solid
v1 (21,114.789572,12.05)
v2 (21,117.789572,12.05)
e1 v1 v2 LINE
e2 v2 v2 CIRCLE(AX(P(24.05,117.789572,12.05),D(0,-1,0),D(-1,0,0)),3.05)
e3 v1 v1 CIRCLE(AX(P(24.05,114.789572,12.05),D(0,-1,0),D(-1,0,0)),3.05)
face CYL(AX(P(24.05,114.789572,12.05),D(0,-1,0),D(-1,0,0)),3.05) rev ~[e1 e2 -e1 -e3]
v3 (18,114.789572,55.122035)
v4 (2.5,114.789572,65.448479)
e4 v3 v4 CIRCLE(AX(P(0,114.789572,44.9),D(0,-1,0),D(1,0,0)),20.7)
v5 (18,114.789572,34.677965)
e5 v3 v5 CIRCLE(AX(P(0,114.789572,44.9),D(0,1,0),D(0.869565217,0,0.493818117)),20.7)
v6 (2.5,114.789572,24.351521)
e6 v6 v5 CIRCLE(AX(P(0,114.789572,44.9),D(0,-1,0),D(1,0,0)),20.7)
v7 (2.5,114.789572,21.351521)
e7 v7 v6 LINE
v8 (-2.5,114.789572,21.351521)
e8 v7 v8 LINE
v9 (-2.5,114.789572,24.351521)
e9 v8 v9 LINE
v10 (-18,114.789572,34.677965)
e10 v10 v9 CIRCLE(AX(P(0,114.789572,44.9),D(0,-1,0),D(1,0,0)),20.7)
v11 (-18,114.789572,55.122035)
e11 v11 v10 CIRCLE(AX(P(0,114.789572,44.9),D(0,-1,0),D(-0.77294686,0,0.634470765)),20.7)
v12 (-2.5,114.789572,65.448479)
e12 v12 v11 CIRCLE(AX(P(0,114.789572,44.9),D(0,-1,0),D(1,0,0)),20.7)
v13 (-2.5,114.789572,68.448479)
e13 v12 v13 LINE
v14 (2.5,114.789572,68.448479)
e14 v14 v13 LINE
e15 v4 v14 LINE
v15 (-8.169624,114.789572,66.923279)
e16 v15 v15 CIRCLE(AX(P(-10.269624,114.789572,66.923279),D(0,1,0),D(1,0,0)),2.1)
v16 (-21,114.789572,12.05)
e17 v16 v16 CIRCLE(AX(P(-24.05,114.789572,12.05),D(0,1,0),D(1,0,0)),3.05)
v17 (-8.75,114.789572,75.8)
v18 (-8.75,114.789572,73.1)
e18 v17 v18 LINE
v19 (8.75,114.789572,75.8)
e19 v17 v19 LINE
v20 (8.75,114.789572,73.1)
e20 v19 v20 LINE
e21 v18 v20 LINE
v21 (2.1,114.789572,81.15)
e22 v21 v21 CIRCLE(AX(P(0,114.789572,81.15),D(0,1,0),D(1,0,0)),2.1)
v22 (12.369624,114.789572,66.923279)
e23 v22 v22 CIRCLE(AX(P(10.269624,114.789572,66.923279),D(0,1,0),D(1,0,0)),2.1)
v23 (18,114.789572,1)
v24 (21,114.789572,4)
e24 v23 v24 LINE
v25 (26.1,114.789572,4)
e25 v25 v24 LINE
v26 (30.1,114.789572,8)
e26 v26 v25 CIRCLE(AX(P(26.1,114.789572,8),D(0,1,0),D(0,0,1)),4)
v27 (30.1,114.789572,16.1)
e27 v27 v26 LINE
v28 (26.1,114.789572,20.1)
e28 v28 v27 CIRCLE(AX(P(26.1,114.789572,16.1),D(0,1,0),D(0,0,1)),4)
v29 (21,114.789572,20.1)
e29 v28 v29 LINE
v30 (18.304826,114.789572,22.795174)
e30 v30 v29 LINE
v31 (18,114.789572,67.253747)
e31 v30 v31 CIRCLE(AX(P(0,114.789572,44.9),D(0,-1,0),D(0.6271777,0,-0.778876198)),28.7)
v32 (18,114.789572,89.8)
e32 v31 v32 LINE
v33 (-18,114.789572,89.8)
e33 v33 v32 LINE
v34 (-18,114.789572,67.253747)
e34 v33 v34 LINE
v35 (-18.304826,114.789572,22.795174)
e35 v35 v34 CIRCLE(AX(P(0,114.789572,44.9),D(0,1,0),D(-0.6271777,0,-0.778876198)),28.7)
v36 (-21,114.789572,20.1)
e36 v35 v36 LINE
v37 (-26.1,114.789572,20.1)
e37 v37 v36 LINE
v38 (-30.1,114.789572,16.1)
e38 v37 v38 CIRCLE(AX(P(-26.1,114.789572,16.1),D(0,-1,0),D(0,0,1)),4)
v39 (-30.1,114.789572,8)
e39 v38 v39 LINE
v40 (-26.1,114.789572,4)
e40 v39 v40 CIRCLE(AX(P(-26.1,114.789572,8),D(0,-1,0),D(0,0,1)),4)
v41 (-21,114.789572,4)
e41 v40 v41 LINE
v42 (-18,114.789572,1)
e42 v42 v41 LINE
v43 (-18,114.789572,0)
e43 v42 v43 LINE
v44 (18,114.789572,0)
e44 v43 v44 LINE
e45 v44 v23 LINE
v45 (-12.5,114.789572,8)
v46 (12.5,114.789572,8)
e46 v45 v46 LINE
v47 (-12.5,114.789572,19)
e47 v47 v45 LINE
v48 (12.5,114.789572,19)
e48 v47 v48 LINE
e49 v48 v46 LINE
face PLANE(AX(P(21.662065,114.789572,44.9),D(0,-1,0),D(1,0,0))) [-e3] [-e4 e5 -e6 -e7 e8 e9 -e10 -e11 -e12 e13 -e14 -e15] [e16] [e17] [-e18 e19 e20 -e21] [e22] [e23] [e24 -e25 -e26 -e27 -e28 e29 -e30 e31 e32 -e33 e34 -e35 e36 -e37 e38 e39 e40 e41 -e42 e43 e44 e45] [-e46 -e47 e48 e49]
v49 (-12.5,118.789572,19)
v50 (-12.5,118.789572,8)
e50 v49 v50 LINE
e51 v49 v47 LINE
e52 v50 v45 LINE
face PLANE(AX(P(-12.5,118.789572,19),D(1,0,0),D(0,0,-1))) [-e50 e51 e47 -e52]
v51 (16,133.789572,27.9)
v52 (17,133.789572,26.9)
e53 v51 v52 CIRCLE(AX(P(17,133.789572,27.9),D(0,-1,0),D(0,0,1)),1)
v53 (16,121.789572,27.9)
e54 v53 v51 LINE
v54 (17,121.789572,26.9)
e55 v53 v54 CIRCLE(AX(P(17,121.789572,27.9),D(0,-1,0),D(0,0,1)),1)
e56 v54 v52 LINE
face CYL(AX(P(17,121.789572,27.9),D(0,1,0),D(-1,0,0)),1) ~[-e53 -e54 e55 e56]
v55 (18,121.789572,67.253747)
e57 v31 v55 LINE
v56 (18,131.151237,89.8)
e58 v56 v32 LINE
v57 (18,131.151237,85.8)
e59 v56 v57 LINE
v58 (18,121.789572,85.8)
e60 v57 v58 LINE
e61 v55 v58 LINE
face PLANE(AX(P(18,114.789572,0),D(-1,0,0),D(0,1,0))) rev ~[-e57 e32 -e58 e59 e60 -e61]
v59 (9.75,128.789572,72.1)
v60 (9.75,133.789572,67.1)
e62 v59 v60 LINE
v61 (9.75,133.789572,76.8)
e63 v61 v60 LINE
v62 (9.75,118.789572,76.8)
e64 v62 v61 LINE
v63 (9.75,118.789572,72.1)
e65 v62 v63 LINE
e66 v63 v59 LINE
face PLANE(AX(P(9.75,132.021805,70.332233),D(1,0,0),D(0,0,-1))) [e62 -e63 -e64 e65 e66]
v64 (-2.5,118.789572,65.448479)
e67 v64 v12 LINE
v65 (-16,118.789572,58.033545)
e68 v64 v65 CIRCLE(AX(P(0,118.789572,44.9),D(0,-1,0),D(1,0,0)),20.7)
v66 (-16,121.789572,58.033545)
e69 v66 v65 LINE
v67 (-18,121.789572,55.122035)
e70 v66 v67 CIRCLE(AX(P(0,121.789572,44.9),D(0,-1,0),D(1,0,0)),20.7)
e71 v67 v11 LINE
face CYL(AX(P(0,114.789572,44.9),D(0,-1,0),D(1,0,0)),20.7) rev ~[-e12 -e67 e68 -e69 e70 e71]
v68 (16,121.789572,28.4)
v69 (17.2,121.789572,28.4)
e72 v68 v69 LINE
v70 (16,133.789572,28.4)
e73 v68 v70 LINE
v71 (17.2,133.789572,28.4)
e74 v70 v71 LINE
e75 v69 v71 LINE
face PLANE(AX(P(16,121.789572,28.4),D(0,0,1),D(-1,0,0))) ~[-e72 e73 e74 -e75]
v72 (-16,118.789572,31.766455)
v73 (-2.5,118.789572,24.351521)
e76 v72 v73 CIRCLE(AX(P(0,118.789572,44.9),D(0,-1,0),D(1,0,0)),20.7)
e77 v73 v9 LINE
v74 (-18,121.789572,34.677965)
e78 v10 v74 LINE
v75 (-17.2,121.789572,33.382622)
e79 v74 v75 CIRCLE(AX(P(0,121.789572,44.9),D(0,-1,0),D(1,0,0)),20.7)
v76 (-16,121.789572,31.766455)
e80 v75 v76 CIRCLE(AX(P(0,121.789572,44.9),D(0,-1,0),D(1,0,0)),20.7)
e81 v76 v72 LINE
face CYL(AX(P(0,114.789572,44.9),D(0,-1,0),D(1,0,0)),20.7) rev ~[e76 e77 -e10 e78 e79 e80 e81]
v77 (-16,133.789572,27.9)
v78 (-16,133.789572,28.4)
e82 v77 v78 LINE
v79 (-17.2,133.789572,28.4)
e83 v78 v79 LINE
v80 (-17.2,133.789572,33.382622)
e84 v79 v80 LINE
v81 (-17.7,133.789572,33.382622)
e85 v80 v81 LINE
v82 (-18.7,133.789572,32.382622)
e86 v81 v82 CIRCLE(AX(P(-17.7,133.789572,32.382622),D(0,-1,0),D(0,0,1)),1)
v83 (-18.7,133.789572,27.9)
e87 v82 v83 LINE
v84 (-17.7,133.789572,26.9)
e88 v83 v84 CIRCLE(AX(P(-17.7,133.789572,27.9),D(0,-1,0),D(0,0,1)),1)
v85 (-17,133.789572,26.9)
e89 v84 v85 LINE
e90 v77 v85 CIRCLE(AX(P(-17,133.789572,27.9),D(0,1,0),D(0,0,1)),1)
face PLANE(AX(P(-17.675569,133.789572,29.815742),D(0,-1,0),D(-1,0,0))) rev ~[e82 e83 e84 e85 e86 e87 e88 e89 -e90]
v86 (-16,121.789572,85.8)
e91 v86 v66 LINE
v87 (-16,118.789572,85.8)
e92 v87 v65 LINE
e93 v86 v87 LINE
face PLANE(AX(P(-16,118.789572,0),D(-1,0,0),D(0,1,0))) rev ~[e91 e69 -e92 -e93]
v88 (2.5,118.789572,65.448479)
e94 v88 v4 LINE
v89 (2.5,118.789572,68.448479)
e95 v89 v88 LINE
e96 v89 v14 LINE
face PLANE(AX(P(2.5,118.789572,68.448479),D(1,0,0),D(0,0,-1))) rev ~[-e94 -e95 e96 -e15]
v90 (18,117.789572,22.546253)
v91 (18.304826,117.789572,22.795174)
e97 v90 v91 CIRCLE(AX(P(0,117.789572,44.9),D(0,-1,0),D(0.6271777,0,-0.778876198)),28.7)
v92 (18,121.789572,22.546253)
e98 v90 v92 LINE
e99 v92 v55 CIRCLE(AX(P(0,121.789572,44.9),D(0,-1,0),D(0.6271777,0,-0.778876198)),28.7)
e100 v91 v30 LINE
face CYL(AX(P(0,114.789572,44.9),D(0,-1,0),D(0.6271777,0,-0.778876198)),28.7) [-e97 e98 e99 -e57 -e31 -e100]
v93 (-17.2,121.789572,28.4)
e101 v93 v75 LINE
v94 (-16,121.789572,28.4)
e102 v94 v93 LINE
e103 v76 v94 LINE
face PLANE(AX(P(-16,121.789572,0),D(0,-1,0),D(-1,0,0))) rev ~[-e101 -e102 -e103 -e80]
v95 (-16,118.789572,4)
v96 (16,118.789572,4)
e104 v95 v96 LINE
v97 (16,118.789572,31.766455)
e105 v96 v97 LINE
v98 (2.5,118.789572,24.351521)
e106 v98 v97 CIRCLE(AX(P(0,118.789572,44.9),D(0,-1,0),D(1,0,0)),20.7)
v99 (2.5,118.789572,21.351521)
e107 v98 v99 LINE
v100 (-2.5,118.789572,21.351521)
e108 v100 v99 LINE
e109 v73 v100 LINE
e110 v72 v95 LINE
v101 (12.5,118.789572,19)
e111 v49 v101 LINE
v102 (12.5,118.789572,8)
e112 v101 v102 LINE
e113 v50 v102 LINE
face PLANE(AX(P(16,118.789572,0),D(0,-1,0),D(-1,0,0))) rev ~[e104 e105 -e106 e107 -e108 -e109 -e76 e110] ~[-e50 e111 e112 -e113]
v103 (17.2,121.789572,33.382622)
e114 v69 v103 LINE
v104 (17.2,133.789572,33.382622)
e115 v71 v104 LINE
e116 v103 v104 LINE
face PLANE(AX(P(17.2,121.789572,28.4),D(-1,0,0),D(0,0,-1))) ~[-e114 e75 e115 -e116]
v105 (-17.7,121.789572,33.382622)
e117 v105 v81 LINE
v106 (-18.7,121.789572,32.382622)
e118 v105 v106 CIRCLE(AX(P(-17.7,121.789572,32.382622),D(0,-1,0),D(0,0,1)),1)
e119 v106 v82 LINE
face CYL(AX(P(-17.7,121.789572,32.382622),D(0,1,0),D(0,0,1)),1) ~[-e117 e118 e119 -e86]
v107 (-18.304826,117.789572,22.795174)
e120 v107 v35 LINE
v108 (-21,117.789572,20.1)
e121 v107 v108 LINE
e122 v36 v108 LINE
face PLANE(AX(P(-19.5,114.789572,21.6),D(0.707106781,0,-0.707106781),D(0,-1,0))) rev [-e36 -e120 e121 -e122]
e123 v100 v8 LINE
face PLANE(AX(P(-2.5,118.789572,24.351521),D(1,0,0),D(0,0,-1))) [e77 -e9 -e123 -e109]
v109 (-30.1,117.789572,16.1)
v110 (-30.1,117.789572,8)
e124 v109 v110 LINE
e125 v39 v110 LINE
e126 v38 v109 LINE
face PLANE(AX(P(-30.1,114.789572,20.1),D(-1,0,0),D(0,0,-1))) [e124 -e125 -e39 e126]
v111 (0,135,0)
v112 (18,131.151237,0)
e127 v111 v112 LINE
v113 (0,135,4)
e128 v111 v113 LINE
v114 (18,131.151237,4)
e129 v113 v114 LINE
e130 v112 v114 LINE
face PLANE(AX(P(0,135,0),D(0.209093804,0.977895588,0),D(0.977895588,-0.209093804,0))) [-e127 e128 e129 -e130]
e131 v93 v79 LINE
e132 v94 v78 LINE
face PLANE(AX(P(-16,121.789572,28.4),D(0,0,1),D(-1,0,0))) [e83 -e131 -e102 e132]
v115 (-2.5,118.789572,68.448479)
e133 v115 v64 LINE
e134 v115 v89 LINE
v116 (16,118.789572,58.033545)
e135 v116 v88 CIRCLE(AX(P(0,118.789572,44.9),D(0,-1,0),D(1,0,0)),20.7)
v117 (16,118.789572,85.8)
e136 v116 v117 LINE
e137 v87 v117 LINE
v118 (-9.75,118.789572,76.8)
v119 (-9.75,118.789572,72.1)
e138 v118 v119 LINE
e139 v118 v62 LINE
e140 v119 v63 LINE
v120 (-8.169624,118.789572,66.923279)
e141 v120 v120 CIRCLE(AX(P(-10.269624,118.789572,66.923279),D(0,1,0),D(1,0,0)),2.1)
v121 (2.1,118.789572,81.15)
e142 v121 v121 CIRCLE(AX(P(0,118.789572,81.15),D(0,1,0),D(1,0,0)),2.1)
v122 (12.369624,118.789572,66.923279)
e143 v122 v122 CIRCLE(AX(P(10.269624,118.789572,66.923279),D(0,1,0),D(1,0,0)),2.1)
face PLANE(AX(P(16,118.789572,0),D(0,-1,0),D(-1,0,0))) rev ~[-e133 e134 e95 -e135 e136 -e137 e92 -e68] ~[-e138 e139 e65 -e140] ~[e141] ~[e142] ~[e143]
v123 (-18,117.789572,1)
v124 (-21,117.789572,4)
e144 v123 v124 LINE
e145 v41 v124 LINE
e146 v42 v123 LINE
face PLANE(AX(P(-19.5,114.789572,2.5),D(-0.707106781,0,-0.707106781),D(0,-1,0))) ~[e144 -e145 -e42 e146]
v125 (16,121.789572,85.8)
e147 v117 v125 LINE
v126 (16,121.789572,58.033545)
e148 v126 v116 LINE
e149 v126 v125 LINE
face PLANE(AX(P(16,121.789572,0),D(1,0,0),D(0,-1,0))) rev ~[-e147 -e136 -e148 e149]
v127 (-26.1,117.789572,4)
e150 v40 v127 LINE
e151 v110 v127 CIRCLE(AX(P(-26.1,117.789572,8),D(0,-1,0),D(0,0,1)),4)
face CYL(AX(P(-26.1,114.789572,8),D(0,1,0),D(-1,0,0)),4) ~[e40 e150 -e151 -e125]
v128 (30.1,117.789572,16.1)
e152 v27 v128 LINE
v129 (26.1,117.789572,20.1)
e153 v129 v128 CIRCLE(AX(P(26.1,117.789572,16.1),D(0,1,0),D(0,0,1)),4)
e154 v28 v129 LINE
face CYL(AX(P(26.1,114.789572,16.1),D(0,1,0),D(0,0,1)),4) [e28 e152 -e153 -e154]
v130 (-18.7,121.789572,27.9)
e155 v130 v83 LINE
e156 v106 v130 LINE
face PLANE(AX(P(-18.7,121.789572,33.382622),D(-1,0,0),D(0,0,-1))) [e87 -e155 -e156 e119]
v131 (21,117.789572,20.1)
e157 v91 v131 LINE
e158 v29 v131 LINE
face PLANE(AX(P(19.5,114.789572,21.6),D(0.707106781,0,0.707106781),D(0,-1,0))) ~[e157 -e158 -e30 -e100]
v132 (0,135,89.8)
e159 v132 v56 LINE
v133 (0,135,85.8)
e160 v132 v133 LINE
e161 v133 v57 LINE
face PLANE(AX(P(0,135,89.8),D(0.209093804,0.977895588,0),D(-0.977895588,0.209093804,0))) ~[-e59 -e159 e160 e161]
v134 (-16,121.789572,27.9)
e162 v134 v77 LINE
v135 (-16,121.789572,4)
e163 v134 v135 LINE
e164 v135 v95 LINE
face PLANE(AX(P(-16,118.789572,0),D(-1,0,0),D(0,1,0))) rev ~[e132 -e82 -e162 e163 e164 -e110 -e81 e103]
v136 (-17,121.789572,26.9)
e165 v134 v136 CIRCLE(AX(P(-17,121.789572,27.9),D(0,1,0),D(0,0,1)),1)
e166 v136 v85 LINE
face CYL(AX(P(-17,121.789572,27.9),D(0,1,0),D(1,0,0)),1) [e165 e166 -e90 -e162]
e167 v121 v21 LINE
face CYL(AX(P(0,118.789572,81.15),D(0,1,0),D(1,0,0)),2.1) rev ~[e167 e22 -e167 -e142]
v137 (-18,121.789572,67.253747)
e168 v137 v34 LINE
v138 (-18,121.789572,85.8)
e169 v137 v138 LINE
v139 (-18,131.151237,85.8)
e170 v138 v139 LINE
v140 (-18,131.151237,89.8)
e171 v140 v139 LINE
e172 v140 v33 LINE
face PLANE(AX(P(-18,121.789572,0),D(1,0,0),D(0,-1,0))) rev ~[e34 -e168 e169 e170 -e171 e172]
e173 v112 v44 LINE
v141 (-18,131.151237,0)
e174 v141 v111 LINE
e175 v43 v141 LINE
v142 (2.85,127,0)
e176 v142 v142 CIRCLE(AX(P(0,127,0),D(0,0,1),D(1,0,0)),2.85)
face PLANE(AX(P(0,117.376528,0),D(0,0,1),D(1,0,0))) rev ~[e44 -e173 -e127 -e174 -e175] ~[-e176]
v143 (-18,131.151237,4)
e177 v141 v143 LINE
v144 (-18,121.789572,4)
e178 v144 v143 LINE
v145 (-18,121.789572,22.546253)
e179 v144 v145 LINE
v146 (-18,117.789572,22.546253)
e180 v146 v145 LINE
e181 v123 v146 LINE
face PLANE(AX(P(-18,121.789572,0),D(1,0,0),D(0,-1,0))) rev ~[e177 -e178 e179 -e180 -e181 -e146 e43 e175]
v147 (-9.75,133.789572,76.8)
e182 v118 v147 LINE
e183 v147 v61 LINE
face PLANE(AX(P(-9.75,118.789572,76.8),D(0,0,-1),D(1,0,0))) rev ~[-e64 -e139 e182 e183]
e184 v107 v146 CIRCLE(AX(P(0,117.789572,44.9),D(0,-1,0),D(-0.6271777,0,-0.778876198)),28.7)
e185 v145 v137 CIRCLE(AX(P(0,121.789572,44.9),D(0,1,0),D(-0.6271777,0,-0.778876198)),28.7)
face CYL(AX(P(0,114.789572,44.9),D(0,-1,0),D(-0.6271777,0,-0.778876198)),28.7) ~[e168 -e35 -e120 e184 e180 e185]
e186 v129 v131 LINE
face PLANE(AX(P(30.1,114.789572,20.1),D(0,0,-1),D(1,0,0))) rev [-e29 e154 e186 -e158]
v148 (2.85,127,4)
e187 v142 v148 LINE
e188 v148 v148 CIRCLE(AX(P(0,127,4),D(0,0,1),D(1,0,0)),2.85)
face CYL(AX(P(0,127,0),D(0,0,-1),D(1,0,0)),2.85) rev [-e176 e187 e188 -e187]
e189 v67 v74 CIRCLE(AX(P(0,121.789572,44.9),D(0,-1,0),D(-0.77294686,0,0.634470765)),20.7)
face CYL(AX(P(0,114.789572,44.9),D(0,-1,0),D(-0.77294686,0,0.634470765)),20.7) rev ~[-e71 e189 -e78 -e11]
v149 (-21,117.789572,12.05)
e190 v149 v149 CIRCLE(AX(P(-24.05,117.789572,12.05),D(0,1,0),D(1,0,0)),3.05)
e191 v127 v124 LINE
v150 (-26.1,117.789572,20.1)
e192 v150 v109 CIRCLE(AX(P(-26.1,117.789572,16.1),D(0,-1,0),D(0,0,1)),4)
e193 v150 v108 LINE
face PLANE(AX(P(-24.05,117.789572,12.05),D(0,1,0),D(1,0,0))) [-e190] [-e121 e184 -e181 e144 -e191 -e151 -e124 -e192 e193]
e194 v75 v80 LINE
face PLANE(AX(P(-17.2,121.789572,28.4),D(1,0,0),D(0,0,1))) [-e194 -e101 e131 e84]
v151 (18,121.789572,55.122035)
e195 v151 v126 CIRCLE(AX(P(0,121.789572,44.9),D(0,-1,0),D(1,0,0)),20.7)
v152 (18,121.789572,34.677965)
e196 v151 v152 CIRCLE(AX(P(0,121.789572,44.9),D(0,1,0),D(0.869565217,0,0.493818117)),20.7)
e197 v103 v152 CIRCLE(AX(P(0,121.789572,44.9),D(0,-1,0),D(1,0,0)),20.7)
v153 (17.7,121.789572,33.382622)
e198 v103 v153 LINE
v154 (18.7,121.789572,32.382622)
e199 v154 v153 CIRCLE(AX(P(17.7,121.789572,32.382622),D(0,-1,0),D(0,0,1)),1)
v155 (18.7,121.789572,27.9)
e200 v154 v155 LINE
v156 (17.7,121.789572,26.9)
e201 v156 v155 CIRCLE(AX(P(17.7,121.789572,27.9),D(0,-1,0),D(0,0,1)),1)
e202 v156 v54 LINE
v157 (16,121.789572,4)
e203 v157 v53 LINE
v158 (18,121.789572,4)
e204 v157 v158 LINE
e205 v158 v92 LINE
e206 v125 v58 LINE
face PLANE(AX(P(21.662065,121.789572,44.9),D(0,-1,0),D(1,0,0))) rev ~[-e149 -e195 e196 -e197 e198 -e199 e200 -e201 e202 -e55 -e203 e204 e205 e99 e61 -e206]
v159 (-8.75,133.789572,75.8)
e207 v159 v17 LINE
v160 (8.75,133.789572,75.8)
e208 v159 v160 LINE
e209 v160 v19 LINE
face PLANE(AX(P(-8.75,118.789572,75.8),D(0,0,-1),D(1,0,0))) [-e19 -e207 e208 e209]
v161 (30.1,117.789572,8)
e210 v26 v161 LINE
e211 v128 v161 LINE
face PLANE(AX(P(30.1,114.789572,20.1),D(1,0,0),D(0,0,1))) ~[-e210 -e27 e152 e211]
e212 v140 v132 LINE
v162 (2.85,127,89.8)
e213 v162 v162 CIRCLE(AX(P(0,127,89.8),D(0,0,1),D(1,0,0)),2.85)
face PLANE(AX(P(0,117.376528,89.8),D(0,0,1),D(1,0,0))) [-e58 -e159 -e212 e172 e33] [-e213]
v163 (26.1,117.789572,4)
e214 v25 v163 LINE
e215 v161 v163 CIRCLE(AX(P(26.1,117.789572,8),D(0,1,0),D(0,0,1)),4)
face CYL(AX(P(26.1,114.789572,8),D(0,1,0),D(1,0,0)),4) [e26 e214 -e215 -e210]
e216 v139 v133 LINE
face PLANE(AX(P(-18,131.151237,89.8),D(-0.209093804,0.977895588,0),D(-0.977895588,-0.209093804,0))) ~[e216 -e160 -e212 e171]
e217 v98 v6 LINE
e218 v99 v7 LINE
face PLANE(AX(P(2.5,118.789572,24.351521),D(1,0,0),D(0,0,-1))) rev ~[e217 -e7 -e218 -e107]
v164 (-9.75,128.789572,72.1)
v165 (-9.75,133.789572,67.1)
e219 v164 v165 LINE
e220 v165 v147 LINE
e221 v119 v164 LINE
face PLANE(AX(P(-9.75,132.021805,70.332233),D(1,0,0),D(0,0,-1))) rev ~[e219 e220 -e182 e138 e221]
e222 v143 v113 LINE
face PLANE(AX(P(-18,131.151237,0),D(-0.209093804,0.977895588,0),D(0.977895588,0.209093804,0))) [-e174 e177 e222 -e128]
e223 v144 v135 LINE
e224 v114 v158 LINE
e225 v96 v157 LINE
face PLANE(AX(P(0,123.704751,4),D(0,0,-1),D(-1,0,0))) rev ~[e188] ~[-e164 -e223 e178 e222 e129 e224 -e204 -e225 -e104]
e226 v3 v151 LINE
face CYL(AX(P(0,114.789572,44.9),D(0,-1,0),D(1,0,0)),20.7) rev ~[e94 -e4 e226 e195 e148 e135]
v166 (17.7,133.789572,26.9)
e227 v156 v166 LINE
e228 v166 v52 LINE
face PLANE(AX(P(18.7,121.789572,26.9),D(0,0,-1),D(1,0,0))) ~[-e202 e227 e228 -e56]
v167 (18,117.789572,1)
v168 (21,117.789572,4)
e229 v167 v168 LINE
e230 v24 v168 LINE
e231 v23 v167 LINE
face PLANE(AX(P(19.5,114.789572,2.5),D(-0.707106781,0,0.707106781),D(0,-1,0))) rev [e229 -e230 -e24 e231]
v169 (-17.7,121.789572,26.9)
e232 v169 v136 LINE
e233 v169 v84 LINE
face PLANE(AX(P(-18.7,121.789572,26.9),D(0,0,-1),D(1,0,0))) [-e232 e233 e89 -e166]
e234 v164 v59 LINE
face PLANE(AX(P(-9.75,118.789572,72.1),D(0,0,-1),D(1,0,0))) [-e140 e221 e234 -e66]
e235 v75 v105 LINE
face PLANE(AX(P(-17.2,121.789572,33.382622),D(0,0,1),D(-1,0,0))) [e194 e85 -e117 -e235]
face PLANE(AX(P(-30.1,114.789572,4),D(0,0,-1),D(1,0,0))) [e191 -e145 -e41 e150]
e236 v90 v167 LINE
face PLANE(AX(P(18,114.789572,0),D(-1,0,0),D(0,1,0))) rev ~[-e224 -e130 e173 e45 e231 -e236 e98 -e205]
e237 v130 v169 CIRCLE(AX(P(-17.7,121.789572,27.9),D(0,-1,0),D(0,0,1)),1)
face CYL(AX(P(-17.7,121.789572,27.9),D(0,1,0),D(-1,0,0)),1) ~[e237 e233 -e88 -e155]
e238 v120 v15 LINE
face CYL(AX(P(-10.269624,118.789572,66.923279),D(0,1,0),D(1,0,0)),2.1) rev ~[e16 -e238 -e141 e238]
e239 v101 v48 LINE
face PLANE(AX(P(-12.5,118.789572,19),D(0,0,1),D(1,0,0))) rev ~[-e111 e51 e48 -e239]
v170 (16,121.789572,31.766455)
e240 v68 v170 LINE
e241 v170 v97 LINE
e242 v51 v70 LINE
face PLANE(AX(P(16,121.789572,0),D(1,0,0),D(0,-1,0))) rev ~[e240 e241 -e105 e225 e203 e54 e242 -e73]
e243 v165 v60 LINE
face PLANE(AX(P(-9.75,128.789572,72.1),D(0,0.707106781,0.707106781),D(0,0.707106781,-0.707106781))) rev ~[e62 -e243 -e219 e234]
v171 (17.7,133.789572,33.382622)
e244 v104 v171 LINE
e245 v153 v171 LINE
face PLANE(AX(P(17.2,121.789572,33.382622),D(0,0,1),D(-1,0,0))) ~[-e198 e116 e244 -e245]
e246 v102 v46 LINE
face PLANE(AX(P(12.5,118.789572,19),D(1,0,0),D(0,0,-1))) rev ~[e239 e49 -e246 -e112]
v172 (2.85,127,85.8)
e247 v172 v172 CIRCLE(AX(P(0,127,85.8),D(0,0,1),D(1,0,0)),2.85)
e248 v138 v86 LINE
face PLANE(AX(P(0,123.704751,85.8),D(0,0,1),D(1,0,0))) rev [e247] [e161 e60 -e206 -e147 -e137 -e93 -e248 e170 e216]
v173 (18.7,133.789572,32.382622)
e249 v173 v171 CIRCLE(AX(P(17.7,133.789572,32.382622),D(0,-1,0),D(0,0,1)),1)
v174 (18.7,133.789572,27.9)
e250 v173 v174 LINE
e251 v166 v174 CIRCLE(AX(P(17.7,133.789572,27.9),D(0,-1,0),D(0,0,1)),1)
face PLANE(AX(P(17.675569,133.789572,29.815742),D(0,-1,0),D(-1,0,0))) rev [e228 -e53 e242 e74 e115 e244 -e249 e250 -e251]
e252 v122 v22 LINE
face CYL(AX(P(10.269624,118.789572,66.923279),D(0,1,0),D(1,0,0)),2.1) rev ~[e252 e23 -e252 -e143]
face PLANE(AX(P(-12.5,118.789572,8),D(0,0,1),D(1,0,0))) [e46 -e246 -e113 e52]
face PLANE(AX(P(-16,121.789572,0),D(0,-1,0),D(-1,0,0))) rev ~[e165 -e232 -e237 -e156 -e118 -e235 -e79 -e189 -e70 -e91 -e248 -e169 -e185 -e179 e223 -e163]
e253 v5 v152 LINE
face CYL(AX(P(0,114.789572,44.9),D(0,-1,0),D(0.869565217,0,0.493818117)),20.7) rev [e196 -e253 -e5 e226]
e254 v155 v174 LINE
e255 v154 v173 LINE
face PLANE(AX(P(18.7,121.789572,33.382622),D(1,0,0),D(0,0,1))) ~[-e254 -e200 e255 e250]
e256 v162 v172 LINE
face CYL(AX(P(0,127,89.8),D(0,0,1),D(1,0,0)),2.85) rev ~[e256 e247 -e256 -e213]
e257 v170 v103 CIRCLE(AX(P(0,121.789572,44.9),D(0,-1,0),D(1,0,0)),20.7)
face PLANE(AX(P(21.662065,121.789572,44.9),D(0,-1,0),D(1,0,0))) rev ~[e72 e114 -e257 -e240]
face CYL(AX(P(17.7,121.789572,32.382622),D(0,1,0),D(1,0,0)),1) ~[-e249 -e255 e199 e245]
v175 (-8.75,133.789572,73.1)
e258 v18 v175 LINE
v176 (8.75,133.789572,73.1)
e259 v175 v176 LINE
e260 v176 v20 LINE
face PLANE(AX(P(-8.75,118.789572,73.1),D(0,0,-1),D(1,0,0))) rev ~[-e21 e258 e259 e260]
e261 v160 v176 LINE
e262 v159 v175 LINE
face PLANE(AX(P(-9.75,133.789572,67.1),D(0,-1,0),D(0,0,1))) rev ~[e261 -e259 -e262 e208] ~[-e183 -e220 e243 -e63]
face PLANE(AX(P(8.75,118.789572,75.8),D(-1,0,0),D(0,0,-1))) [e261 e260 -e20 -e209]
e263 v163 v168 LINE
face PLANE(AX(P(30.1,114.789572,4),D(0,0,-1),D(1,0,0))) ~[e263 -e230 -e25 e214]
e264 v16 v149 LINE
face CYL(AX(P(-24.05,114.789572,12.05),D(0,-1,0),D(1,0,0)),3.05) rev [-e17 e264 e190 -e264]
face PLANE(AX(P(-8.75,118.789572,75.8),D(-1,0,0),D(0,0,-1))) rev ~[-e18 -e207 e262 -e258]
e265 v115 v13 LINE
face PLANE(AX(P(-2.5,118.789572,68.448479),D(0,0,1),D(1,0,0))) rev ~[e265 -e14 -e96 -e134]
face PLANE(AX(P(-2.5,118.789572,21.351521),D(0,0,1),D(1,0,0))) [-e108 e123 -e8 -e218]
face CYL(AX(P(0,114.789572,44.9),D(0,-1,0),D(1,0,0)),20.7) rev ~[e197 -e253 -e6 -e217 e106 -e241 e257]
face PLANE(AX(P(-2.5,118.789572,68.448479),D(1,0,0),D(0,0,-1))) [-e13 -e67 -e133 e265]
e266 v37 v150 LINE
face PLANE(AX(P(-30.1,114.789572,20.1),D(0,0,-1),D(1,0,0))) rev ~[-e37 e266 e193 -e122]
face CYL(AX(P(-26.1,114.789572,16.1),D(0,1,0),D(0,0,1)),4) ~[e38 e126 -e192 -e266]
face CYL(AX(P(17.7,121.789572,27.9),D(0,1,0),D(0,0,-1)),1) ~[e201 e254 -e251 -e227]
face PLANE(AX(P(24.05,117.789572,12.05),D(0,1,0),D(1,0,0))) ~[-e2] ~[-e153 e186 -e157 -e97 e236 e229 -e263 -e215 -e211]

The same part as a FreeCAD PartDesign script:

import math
import FreeCAD as App
import Part
import Sketcher
from FreeCAD import Vector
Q = App.Units.Quantity


def edges_at(feature, points):
    """Names of the edges that pass closest to the given points."""
    edges = feature.Shape.Edges
    near = lambda p: min(range(len(edges)), key=lambda i: edges[i].distToShape(Part.Vertex(*p))[0])
    return sorted({f"Edge{near(p) + 1}" for p in points})


def add_polygon(sketch, points):
    """Adds a closed chain of lines whose ends are joined by coincident constraints."""
    first, n = sketch.GeometryCount, len(points)
    for a, b in zip(points, points[1:] + points[:1]):
        sketch.addGeometry(Part.LineSegment(App.Vector(*a, 0), App.Vector(*b, 0)), False)
    for i in range(n):
        sketch.addConstraint(Sketcher.Constraint("Coincident", first + i, 2, first + (i + 1) % n, 1))

doc = App.newDocument("Part")
body = doc.addObject("PartDesign::Body", "Body")

sketch1 = doc.addObject("Sketcher::SketchObject", "Sketch")
body.addObject(sketch1)
sketch1.AttachmentSupport = (doc.XY_Plane, [""])
sketch1.MapMode = "FlatFace"
add_polygon(sketch1, [(-18, 114.789572), (18, 114.789572), (18, 121.789572), (16, 121.789572), (16, 118.789572), (-16, 118.789572), (-16, 121.789572), (-18, 121.789572)])
sketch1.addConstraint(Sketcher.Constraint("Horizontal", 0))
sketch1.addConstraint(Sketcher.Constraint("Vertical", 1))
sketch1.addConstraint(Sketcher.Constraint("Horizontal", 2))
sketch1.addConstraint(Sketcher.Constraint("Vertical", 3))
sketch1.addConstraint(Sketcher.Constraint("Horizontal", 4))
sketch1.addConstraint(Sketcher.Constraint("Vertical", 5))
sketch1.addConstraint(Sketcher.Constraint("Horizontal", 6))
sketch1.addConstraint(Sketcher.Constraint("Vertical", 7))
sketch1.addConstraint(Sketcher.Constraint("Symmetric", 2, 2, 5, 2, -2))
sketch1.addConstraint(Sketcher.Constraint("Equal", 2, 6))
sketch1.addConstraint(Sketcher.Constraint("DistanceX", 0, 1, 0, 2, Q("36 mm")))
sketch1.addConstraint(Sketcher.Constraint("DistanceX", 2, 2, 2, 1, Q("2 mm")))
sketch1.addConstraint(Sketcher.Constraint("DistanceY", 1, 1, 1, 2, Q("7 mm")))
sketch1.addConstraint(Sketcher.Constraint("DistanceY", 3, 2, 3, 1, Q("3 mm")))
sketch1.addConstraint(Sketcher.Constraint("DistanceY", -1, 1, 0, 2, Q("114.789572 mm")))
pad1 = doc.addObject("PartDesign::Pad", "Pad")
body.addObject(pad1)
pad1.Profile = sketch1
pad1.Length = 89.8

sketch2 = doc.addObject("Sketcher::SketchObject", "Sketch001")
body.addObject(sketch2)
sketch2.AttachmentSupport = (doc.XY_Plane, [""])
sketch2.MapMode = "FlatFace"
add_polygon(sketch2, [(-18, 131.151237), (-18, 114.789572), (18, 114.789572), (18, 131.151237), (0, 135)])
sketch2.addGeometry(Part.Circle(Vector(0, 127, 0), Vector(0, 0, 1), 2.85), False)
sketch2.addConstraint(Sketcher.Constraint("Vertical", 0))
sketch2.addConstraint(Sketcher.Constraint("Horizontal", 1))
sketch2.addConstraint(Sketcher.Constraint("Vertical", 2))
sketch2.addConstraint(Sketcher.Constraint("Symmetric", 2, 2, 4, 2, -2))
sketch2.addConstraint(Sketcher.Constraint("PointOnObject", 5, 3, -2))
sketch2.addConstraint(Sketcher.Constraint("PointOnObject", 3, 2, -2))
sketch2.addConstraint(Sketcher.Constraint("Diameter", 5, Q("5.7 mm")))
sketch2.addConstraint(Sketcher.Constraint("DistanceX", 1, 1, 1, 2, Q("36 mm")))
sketch2.addConstraint(Sketcher.Constraint("DistanceY", -1, 1, 5, 3, Q("127 mm")))
sketch2.addConstraint(Sketcher.Constraint("DistanceY", -1, 1, 3, 2, Q("135 mm")))
sketch2.addConstraint(Sketcher.Constraint("DistanceY", 0, 2, 0, 1, Q("16.361665 mm")))
sketch2.addConstraint(Sketcher.Constraint("DistanceY", -1, 1, 0, 2, Q("114.789572 mm")))
pad2 = doc.addObject("PartDesign::Pad", "Pad001")
body.addObject(pad2)
pad2.Profile = sketch2
pad2.Length = 4
doc.recompute()

datumplane = doc.addObject("PartDesign::Plane", "DatumPlane")
body.addObject(datumplane)
datumplane.AttachmentSupport = (doc.XY_Plane, [""])
datumplane.MapMode = "FlatFace"
datumplane.AttachmentOffset = App.Placement(Vector(0, 0, 44.9), App.Rotation())
mirrored = doc.addObject("PartDesign::Mirrored", "Mirrored")
body.addObject(mirrored)
mirrored.Originals = [pad2]
mirrored.MirrorPlane = (datumplane, [""])
body.Tip = mirrored

sketch3 = doc.addObject("Sketcher::SketchObject", "Sketch002")
body.addObject(sketch3)
sketch3.AttachmentSupport = (doc.XZ_Plane, [""])
sketch3.MapMode = "FlatFace"
sketch3.AttachmentOffset = App.Placement(Vector(0, 0, -118.789572), App.Rotation())
add_polygon(sketch3, [(-12.5, 8), (-12.5, 19), (12.5, 19), (12.5, 8)])
sketch3.addConstraint(Sketcher.Constraint("Vertical", 0))
sketch3.addConstraint(Sketcher.Constraint("Horizontal", 1))
sketch3.addConstraint(Sketcher.Constraint("Vertical", 2))
sketch3.addConstraint(Sketcher.Constraint("Horizontal", 3))
sketch3.addConstraint(Sketcher.Constraint("DistanceX", 1, 1, 1, 2, Q("25 mm")))
sketch3.addConstraint(Sketcher.Constraint("DistanceY", 0, 1, 0, 2, Q("11 mm")))
sketch3.addConstraint(Sketcher.Constraint("DistanceY", -1, 1, 0, 2, Q("19 mm")))
sketch3.addConstraint(Sketcher.Constraint("DistanceX", 0, 2, -1, 1, Q("12.5 mm")))
pocket1 = doc.addObject("PartDesign::Pocket", "Pocket")
body.addObject(pocket1)
pocket1.Profile = sketch3
pocket1.Type = "ThroughAll"
pocket1.Reversed = True

sketch4 = doc.addObject("Sketcher::SketchObject", "Sketch003")
body.addObject(sketch4)
sketch4.AttachmentSupport = (doc.XZ_Plane, [""])
sketch4.MapMode = "FlatFace"
sketch4.AttachmentOffset = App.Placement(Vector(0, 0, -118.789572), App.Rotation())
add_polygon(sketch4, [(-9.75, 72.1), (-9.75, 76.8), (9.75, 76.8), (9.75, 72.1)])
add_polygon(sketch4, [(8.75, 75.8), (-8.75, 75.8), (-8.75, 73.1), (8.75, 73.1)])
sketch4.addConstraint(Sketcher.Constraint("Vertical", 0))
sketch4.addConstraint(Sketcher.Constraint("Horizontal", 1))
sketch4.addConstraint(Sketcher.Constraint("Vertical", 2))
sketch4.addConstraint(Sketcher.Constraint("Horizontal", 3))
sketch4.addConstraint(Sketcher.Constraint("Horizontal", 4))
sketch4.addConstraint(Sketcher.Constraint("Vertical", 5))
sketch4.addConstraint(Sketcher.Constraint("Horizontal", 6))
sketch4.addConstraint(Sketcher.Constraint("Vertical", 7))
sketch4.addConstraint(Sketcher.Constraint("DistanceX", 1, 1, 1, 2, Q("19.5 mm")))
sketch4.addConstraint(Sketcher.Constraint("DistanceX", 4, 2, 4, 1, Q("17.5 mm")))
sketch4.addConstraint(Sketcher.Constraint("DistanceY", 0, 1, 0, 2, Q("4.7 mm")))
sketch4.addConstraint(Sketcher.Constraint("DistanceY", 5, 2, 5, 1, Q("2.7 mm")))
sketch4.addConstraint(Sketcher.Constraint("DistanceX", 0, 2, 4, 2, Q("1 mm")))
sketch4.addConstraint(Sketcher.Constraint("DistanceY", 4, 2, 0, 2, Q("1 mm")))
sketch4.addConstraint(Sketcher.Constraint("DistanceY", -1, 1, 0, 2, Q("76.8 mm")))
sketch4.addConstraint(Sketcher.Constraint("DistanceX", 0, 2, -1, 1, Q("9.75 mm")))
pad3 = doc.addObject("PartDesign::Pad", "Pad002")
body.addObject(pad3)
pad3.Profile = sketch4
pad3.Length = 15
pad3.Reversed = True

sketch5 = doc.addObject("Sketcher::SketchObject", "Sketch004")
body.addObject(sketch5)
sketch5.AttachmentSupport = (doc.YZ_Plane, [""])
sketch5.MapMode = "FlatFace"
sketch5.AttachmentOffset = App.Placement(Vector(0, 0, -9.75), App.Rotation())
add_polygon(sketch5, [(133.789572, 67.1), (128.789572, 72.1), (133.789572, 72.1)])
sketch5.addConstraint(Sketcher.Constraint("Horizontal", 1))
sketch5.addConstraint(Sketcher.Constraint("Vertical", 2))
sketch5.addConstraint(Sketcher.Constraint("Equal", 1, 2))
sketch5.addConstraint(Sketcher.Constraint("DistanceX", 1, 1, 1, 2, Q("5 mm")))
sketch5.addConstraint(Sketcher.Constraint("DistanceY", -1, 1, 0, 2, Q("72.1 mm")))
sketch5.addConstraint(Sketcher.Constraint("DistanceX", -1, 1, 0, 2, Q("128.789572 mm")))
pad4 = doc.addObject("PartDesign::Pad", "Pad003")
body.addObject(pad4)
pad4.Profile = sketch5
pad4.Length = 19.5

sketch6 = doc.addObject("Sketcher::SketchObject", "Sketch005")
body.addObject(sketch6)
sketch6.AttachmentSupport = (doc.XZ_Plane, [""])
sketch6.MapMode = "FlatFace"
sketch6.AttachmentOffset = App.Placement(Vector(0, 0, -118.789572), App.Rotation())
add_polygon(sketch6, [(-8.75, 73.1), (-8.75, 75.8), (8.75, 75.8), (8.75, 73.1)])
sketch6.addConstraint(Sketcher.Constraint("Vertical", 0))
sketch6.addConstraint(Sketcher.Constraint("Horizontal", 1))
sketch6.addConstraint(Sketcher.Constraint("Vertical", 2))
sketch6.addConstraint(Sketcher.Constraint("Horizontal", 3))
sketch6.addConstraint(Sketcher.Constraint("DistanceX", 1, 1, 1, 2, Q("17.5 mm")))
sketch6.addConstraint(Sketcher.Constraint("DistanceY", 0, 1, 0, 2, Q("2.7 mm")))
sketch6.addConstraint(Sketcher.Constraint("DistanceY", -1, 1, 0, 2, Q("75.8 mm")))
sketch6.addConstraint(Sketcher.Constraint("DistanceX", 0, 2, -1, 1, Q("8.75 mm")))
pocket2 = doc.addObject("PartDesign::Pocket", "Pocket001")
body.addObject(pocket2)
pocket2.Profile = sketch6
pocket2.Type = "ThroughAll"
pocket2.Reversed = True

sketch7 = doc.addObject("Sketcher::SketchObject", "Sketch006")
body.addObject(sketch7)
sketch7.AttachmentSupport = (doc.XZ_Plane, [""])
sketch7.MapMode = "FlatFace"
sketch7.AttachmentOffset = App.Placement(Vector(0, 0, -114.789572), App.Rotation())
add_polygon(sketch7, [(-30.1, 4), (-30.1, 20.1), (-18, 20.1), (-18, 4)])
sketch7.addGeometry(Part.Circle(Vector(-24.05, 12.05, 0), Vector(0, 0, 1), 3.05), False)
sketch7.addConstraint(Sketcher.Constraint("Vertical", 0))
sketch7.addConstraint(Sketcher.Constraint("Horizontal", 1))
sketch7.addConstraint(Sketcher.Constraint("Vertical", 2))
sketch7.addConstraint(Sketcher.Constraint("Horizontal", 3))
sketch7.addConstraint(Sketcher.Constraint("Diameter", 4, Q("6.1 mm")))
sketch7.addConstraint(Sketcher.Constraint("DistanceX", 1, 1, 1, 2, Q("12.1 mm")))
sketch7.addConstraint(Sketcher.Constraint("DistanceY", 0, 1, 0, 2, Q("16.1 mm")))
sketch7.addConstraint(Sketcher.Constraint("DistanceX", 1, 2, -1, 1, Q("18 mm")))
sketch7.addConstraint(Sketcher.Constraint("DistanceY", -1, 1, 2, 2, Q("4 mm")))
sketch7.addConstraint(Sketcher.Constraint("DistanceX", 4, 3, -1, 1, Q("24.05 mm")))
sketch7.addConstraint(Sketcher.Constraint("DistanceY", -1, 1, 4, 3, Q("12.05 mm")))
pad5 = doc.addObject("PartDesign::Pad", "Pad004")
body.addObject(pad5)
pad5.Profile = sketch7
pad5.Length = 3
pad5.Reversed = True
doc.recompute()

mirrored2 = doc.addObject("PartDesign::Mirrored", "Mirrored001")
body.addObject(mirrored2)
mirrored2.Originals = [pad5]
mirrored2.MirrorPlane = (doc.YZ_Plane, [""])
body.Tip = mirrored2
doc.recompute()

chamfer = doc.addObject("PartDesign::Chamfer", "Chamfer")
body.addObject(chamfer)
chamfer.Base = (mirrored2, edges_at(mirrored2, [
    (-18, 116.29, 20.1),
    (-18, 116.29, 4),
    (18, 116.29, 4),
    (18, 116.29, 20.1),
]))
chamfer.Size = 3

sketch8 = doc.addObject("Sketcher::SketchObject", "Sketch007")
body.addObject(sketch8)
sketch8.AttachmentSupport = (doc.XZ_Plane, [""])
sketch8.MapMode = "FlatFace"
sketch8.AttachmentOffset = App.Placement(Vector(0, 0, -118.789572), App.Rotation())
sketch8.addGeometry(Part.Circle(Vector(0, 81.15, 0), Vector(0, 0, 1), 2.1), False)
sketch8.addConstraint(Sketcher.Constraint("PointOnObject", 0, 3, -2))
sketch8.addConstraint(Sketcher.Constraint("Diameter", 0, Q("4.2 mm")))
sketch8.addConstraint(Sketcher.Constraint("DistanceY", -1, 1, 0, 3, Q("81.15 mm")))
pocket3 = doc.addObject("PartDesign::Pocket", "Pocket002")
body.addObject(pocket3)
pocket3.Profile = sketch8
pocket3.Type = "ThroughAll"
pocket3.Reversed = True

sketch9 = doc.addObject("Sketcher::SketchObject", "Sketch008")
body.addObject(sketch9)
sketch9.AttachmentSupport = (doc.XZ_Plane, [""])
sketch9.MapMode = "FlatFace"
sketch9.AttachmentOffset = App.Placement(Vector(0, 0, -114.789572), App.Rotation())
sketch9.addGeometry(Part.LineSegment(Vector(18, 67.253747, 0), Vector(18, 55.122035, 0)), False)
sketch9.addGeometry(Part.ArcOfCircle(Part.Circle(Vector(0, 44.9, 0), Vector(0, 0, 1), 20.7), math.radians(-29.591846), math.radians(29.591846)), False)
sketch9.addGeometry(Part.LineSegment(Vector(18, 34.677965, 0), Vector(18, 22.546253, 0)), False)
sketch9.addGeometry(Part.ArcOfCircle(Part.Circle(Vector(0, 44.9, 0), Vector(0, 0, 1), 28.7), math.radians(-51.157796), math.radians(51.157796)), False)
sketch9.addGeometry(Part.LineSegment(Vector(-16, 58.033545, 0), Vector(-16, 68.726246, 0)), False)
sketch9.addGeometry(Part.ArcOfCircle(Part.Circle(Vector(0, 44.9, 0), Vector(0, 0, 1), 28.7), math.radians(123.882481), math.radians(231.157796)), False)
sketch9.addGeometry(Part.LineSegment(Vector(-18, 22.546253, 0), Vector(-18, 34.677965, 0)), False)
sketch9.addGeometry(Part.ArcOfCircle(Part.Circle(Vector(0, 44.9, 0), Vector(0, 0, 1), 20.7), math.radians(140.619257), math.radians(209.591846)), False)
sketch9.addConstraint(Sketcher.Constraint("Coincident", 0, 2, 1, 2))
sketch9.addConstraint(Sketcher.Constraint("Coincident", 1, 1, 2, 1))
sketch9.addConstraint(Sketcher.Constraint("Coincident", 2, 2, 3, 1))
sketch9.addConstraint(Sketcher.Constraint("Coincident", 3, 2, 0, 1))
sketch9.addConstraint(Sketcher.Constraint("Coincident", 4, 2, 5, 1))
sketch9.addConstraint(Sketcher.Constraint("Coincident", 5, 2, 6, 1))
sketch9.addConstraint(Sketcher.Constraint("Coincident", 6, 2, 7, 2))
sketch9.addConstraint(Sketcher.Constraint("Coincident", 7, 1, 4, 1))
sketch9.addConstraint(Sketcher.Constraint("Vertical", 0))
sketch9.addConstraint(Sketcher.Constraint("Vertical", 2))
sketch9.addConstraint(Sketcher.Constraint("Vertical", 4))
sketch9.addConstraint(Sketcher.Constraint("Vertical", 6))
sketch9.addConstraint(Sketcher.Constraint("Coincident", 3, 3, 1, 3))
sketch9.addConstraint(Sketcher.Constraint("Coincident", 5, 3, 1, 3))
sketch9.addConstraint(Sketcher.Constraint("Coincident", 7, 3, 1, 3))
sketch9.addConstraint(Sketcher.Constraint("Equal", 3, 5))
sketch9.addConstraint(Sketcher.Constraint("Equal", 1, 7))
sketch9.addConstraint(Sketcher.Constraint("Symmetric", 2, 2, 5, 2, -2))
sketch9.addConstraint(Sketcher.Constraint("Vertical", 0, 2, 1, 1))
sketch9.addConstraint(Sketcher.Constraint("Radius", 1, Q("20.7 mm")))
sketch9.addConstraint(Sketcher.Constraint("Radius", 3, Q("28.7 mm")))
sketch9.addConstraint(Sketcher.Constraint("DistanceX", -1, 1, 0, 2, Q("18 mm")))
sketch9.addConstraint(Sketcher.Constraint("DistanceX", 4, 2, -1, 1, Q("16 mm")))
sketch9.addConstraint(Sketcher.Constraint("DistanceY", -1, 1, 1, 3, Q("44.9 mm")))
pad6 = doc.addObject("PartDesign::Pad", "Pad005")
body.addObject(pad6)
pad6.Profile = sketch9
pad6.Length = 7
pad6.Reversed = True

sketch10 = doc.addObject("Sketcher::SketchObject", "Sketch009")
body.addObject(sketch10)
sketch10.AttachmentSupport = (doc.XZ_Plane, [""])
sketch10.MapMode = "FlatFace"
sketch10.AttachmentOffset = App.Placement(Vector(0, 0, -114.789572), App.Rotation())
sketch10.addGeometry(Part.Circle(Vector(0, 44.9, 0), Vector(0, 0, 1), 20.7), False)
sketch10.addConstraint(Sketcher.Constraint("PointOnObject", 0, 3, -2))
sketch10.addConstraint(Sketcher.Constraint("Diameter", 0, Q("41.4 mm")))
sketch10.addConstraint(Sketcher.Constraint("DistanceY", -1, 1, 0, 3, Q("44.9 mm")))
pocket4 = doc.addObject("PartDesign::Pocket", "Pocket003")
body.addObject(pocket4)
pocket4.Profile = sketch10
pocket4.Length = 7
doc.recompute()

fillet = doc.addObject("PartDesign::Fillet", "Fillet")
body.addObject(fillet)
fillet.Base = (pocket4, edges_at(pocket4, [
    (-30.1, 116.29, 4),
    (-30.1, 116.29, 20.1),
    (30.1, 116.29, 20.1),
    (30.1, 116.29, 4),
]))
fillet.Radius = 4

sketch11 = doc.addObject("Sketcher::SketchObject", "Sketch010")
body.addObject(sketch11)
sketch11.AttachmentSupport = (doc.XZ_Plane, [""])
sketch11.MapMode = "FlatFace"
sketch11.AttachmentOffset = App.Placement(Vector(0, 0, -118.789572), App.Rotation())
sketch11.addGeometry(Part.Circle(Vector(-10.269624, 66.923279, 0), Vector(0, 0, 1), 2.1), False)
sketch11.addGeometry(Part.Circle(Vector(10.269624, 66.923279, 0), Vector(0, 0, 1), 2.1), False)
sketch11.addConstraint(Sketcher.Constraint("Equal", 0, 1))
sketch11.addConstraint(Sketcher.Constraint("Symmetric", 0, 3, 1, 3, -2))
sketch11.addConstraint(Sketcher.Constraint("Diameter", 0, Q("4.2 mm")))
sketch11.addConstraint(Sketcher.Constraint("DistanceY", -1, 1, 0, 3, Q("66.923279 mm")))
sketch11.addConstraint(Sketcher.Constraint("DistanceX", 0, 3, -1, 1, Q("10.269624 mm")))
pocket5 = doc.addObject("PartDesign::Pocket", "Pocket004")
body.addObject(pocket5)
pocket5.Profile = sketch11
pocket5.Type = "ThroughAll"
pocket5.Reversed = True

sketch12 = doc.addObject("Sketcher::SketchObject", "Sketch011")
body.addObject(sketch12)
sketch12.AttachmentSupport = (doc.XZ_Plane, [""])
sketch12.MapMode = "FlatFace"
sketch12.AttachmentOffset = App.Placement(Vector(0, 0, -118.789572), App.Rotation())
add_polygon(sketch12, [(-2.5, 65.448479), (-2.5, 68.448479), (2.5, 68.448479), (2.5, 65.448479)])
add_polygon(sketch12, [(-2.5, 21.351521), (-2.5, 24.351521), (2.5, 24.351521), (2.5, 21.351521)])
sketch12.addConstraint(Sketcher.Constraint("Vertical", 0))
sketch12.addConstraint(Sketcher.Constraint("Horizontal", 1))
sketch12.addConstraint(Sketcher.Constraint("Vertical", 2))
sketch12.addConstraint(Sketcher.Constraint("Horizontal", 3))
sketch12.addConstraint(Sketcher.Constraint("Vertical", 4))
sketch12.addConstraint(Sketcher.Constraint("Horizontal", 5))
sketch12.addConstraint(Sketcher.Constraint("Vertical", 6))
sketch12.addConstraint(Sketcher.Constraint("Horizontal", 7))
sketch12.addConstraint(Sketcher.Constraint("Vertical", 3, 2, 4, 2))
sketch12.addConstraint(Sketcher.Constraint("Vertical", 2, 2, 5, 2))
sketch12.addConstraint(Sketcher.Constraint("Equal", 2, 4))
sketch12.addConstraint(Sketcher.Constraint("DistanceX", 1, 1, 1, 2, Q("5 mm")))
sketch12.addConstraint(Sketcher.Constraint("DistanceY", 0, 1, 0, 2, Q("3 mm")))
sketch12.addConstraint(Sketcher.Constraint("DistanceX", 0, 2, -1, 1, Q("2.5 mm")))
sketch12.addConstraint(Sketcher.Constraint("DistanceY", -1, 1, 0, 2, Q("68.448479 mm")))
sketch12.addConstraint(Sketcher.Constraint("DistanceY", -1, 1, 4, 2, Q("24.351521 mm")))
pocket6 = doc.addObject("PartDesign::Pocket", "Pocket005")
body.addObject(pocket6)
pocket6.Profile = sketch12
pocket6.Type = "ThroughAll"
pocket6.Reversed = True

sketch13 = doc.addObject("Sketcher::SketchObject", "Sketch012")
body.addObject(sketch13)
sketch13.AttachmentSupport = (doc.XZ_Plane, [""])
sketch13.MapMode = "FlatFace"
sketch13.AttachmentOffset = App.Placement(Vector(0, 0, -121.789572), App.Rotation())
add_polygon(sketch13, [(-16, 26.9), (-18.7, 26.9), (-18.7, 33.382622), (-17.2, 33.382622), (-17.2, 28.4), (-16, 28.4)])
sketch13.addConstraint(Sketcher.Constraint("Horizontal", 0))
sketch13.addConstraint(Sketcher.Constraint("Vertical", 1))
sketch13.addConstraint(Sketcher.Constraint("Horizontal", 2))
sketch13.addConstraint(Sketcher.Constraint("Vertical", 3))
sketch13.addConstraint(Sketcher.Constraint("Horizontal", 4))
sketch13.addConstraint(Sketcher.Constraint("Vertical", 5))
sketch13.addConstraint(Sketcher.Constraint("Equal", 2, 5))
sketch13.addConstraint(Sketcher.Constraint("DistanceX", 0, 2, 0, 1, Q("2.7 mm")))
sketch13.addConstraint(Sketcher.Constraint("DistanceX", 2, 1, 2, 2, Q("1.5 mm")))
sketch13.addConstraint(Sketcher.Constraint("DistanceX", 4, 2, -1, 1, Q("16 mm")))
sketch13.addConstraint(Sketcher.Constraint("DistanceY", -1, 1, 0, 2, Q("26.9 mm")))
sketch13.addConstraint(Sketcher.Constraint("DistanceY", 1, 1, 1, 2, Q("6.482622 mm")))
pad7 = doc.addObject("PartDesign::Pad", "Pad006")
body.addObject(pad7)
pad7.Profile = sketch13
pad7.Length = 12
pad7.Reversed = True
doc.recompute()

fillet2 = doc.addObject("PartDesign::Fillet", "Fillet001")
body.addObject(fillet2)
fillet2.Base = (pad7, edges_at(pad7, [(-16, 127.79, 26.9), (-18.7, 127.79, 33.383), (-18.7, 127.79, 26.9)]))
fillet2.Radius = 1
doc.recompute()

mirrored3 = doc.addObject("PartDesign::Mirrored", "Mirrored002")
body.addObject(mirrored3)
mirrored3.Originals = [pad7]
mirrored3.MirrorPlane = (doc.YZ_Plane, [""])
body.Tip = mirrored3
doc.recompute()

fillet3 = doc.addObject("PartDesign::Fillet", "Fillet002")
body.addObject(fillet3)
fillet3.Base = (mirrored3, edges_at(mirrored3, [(16, 127.79, 26.9), (18.7, 127.79, 33.383), (18.7, 127.79, 26.9)]))
fillet3.Radius = 1

doc.recompute()
